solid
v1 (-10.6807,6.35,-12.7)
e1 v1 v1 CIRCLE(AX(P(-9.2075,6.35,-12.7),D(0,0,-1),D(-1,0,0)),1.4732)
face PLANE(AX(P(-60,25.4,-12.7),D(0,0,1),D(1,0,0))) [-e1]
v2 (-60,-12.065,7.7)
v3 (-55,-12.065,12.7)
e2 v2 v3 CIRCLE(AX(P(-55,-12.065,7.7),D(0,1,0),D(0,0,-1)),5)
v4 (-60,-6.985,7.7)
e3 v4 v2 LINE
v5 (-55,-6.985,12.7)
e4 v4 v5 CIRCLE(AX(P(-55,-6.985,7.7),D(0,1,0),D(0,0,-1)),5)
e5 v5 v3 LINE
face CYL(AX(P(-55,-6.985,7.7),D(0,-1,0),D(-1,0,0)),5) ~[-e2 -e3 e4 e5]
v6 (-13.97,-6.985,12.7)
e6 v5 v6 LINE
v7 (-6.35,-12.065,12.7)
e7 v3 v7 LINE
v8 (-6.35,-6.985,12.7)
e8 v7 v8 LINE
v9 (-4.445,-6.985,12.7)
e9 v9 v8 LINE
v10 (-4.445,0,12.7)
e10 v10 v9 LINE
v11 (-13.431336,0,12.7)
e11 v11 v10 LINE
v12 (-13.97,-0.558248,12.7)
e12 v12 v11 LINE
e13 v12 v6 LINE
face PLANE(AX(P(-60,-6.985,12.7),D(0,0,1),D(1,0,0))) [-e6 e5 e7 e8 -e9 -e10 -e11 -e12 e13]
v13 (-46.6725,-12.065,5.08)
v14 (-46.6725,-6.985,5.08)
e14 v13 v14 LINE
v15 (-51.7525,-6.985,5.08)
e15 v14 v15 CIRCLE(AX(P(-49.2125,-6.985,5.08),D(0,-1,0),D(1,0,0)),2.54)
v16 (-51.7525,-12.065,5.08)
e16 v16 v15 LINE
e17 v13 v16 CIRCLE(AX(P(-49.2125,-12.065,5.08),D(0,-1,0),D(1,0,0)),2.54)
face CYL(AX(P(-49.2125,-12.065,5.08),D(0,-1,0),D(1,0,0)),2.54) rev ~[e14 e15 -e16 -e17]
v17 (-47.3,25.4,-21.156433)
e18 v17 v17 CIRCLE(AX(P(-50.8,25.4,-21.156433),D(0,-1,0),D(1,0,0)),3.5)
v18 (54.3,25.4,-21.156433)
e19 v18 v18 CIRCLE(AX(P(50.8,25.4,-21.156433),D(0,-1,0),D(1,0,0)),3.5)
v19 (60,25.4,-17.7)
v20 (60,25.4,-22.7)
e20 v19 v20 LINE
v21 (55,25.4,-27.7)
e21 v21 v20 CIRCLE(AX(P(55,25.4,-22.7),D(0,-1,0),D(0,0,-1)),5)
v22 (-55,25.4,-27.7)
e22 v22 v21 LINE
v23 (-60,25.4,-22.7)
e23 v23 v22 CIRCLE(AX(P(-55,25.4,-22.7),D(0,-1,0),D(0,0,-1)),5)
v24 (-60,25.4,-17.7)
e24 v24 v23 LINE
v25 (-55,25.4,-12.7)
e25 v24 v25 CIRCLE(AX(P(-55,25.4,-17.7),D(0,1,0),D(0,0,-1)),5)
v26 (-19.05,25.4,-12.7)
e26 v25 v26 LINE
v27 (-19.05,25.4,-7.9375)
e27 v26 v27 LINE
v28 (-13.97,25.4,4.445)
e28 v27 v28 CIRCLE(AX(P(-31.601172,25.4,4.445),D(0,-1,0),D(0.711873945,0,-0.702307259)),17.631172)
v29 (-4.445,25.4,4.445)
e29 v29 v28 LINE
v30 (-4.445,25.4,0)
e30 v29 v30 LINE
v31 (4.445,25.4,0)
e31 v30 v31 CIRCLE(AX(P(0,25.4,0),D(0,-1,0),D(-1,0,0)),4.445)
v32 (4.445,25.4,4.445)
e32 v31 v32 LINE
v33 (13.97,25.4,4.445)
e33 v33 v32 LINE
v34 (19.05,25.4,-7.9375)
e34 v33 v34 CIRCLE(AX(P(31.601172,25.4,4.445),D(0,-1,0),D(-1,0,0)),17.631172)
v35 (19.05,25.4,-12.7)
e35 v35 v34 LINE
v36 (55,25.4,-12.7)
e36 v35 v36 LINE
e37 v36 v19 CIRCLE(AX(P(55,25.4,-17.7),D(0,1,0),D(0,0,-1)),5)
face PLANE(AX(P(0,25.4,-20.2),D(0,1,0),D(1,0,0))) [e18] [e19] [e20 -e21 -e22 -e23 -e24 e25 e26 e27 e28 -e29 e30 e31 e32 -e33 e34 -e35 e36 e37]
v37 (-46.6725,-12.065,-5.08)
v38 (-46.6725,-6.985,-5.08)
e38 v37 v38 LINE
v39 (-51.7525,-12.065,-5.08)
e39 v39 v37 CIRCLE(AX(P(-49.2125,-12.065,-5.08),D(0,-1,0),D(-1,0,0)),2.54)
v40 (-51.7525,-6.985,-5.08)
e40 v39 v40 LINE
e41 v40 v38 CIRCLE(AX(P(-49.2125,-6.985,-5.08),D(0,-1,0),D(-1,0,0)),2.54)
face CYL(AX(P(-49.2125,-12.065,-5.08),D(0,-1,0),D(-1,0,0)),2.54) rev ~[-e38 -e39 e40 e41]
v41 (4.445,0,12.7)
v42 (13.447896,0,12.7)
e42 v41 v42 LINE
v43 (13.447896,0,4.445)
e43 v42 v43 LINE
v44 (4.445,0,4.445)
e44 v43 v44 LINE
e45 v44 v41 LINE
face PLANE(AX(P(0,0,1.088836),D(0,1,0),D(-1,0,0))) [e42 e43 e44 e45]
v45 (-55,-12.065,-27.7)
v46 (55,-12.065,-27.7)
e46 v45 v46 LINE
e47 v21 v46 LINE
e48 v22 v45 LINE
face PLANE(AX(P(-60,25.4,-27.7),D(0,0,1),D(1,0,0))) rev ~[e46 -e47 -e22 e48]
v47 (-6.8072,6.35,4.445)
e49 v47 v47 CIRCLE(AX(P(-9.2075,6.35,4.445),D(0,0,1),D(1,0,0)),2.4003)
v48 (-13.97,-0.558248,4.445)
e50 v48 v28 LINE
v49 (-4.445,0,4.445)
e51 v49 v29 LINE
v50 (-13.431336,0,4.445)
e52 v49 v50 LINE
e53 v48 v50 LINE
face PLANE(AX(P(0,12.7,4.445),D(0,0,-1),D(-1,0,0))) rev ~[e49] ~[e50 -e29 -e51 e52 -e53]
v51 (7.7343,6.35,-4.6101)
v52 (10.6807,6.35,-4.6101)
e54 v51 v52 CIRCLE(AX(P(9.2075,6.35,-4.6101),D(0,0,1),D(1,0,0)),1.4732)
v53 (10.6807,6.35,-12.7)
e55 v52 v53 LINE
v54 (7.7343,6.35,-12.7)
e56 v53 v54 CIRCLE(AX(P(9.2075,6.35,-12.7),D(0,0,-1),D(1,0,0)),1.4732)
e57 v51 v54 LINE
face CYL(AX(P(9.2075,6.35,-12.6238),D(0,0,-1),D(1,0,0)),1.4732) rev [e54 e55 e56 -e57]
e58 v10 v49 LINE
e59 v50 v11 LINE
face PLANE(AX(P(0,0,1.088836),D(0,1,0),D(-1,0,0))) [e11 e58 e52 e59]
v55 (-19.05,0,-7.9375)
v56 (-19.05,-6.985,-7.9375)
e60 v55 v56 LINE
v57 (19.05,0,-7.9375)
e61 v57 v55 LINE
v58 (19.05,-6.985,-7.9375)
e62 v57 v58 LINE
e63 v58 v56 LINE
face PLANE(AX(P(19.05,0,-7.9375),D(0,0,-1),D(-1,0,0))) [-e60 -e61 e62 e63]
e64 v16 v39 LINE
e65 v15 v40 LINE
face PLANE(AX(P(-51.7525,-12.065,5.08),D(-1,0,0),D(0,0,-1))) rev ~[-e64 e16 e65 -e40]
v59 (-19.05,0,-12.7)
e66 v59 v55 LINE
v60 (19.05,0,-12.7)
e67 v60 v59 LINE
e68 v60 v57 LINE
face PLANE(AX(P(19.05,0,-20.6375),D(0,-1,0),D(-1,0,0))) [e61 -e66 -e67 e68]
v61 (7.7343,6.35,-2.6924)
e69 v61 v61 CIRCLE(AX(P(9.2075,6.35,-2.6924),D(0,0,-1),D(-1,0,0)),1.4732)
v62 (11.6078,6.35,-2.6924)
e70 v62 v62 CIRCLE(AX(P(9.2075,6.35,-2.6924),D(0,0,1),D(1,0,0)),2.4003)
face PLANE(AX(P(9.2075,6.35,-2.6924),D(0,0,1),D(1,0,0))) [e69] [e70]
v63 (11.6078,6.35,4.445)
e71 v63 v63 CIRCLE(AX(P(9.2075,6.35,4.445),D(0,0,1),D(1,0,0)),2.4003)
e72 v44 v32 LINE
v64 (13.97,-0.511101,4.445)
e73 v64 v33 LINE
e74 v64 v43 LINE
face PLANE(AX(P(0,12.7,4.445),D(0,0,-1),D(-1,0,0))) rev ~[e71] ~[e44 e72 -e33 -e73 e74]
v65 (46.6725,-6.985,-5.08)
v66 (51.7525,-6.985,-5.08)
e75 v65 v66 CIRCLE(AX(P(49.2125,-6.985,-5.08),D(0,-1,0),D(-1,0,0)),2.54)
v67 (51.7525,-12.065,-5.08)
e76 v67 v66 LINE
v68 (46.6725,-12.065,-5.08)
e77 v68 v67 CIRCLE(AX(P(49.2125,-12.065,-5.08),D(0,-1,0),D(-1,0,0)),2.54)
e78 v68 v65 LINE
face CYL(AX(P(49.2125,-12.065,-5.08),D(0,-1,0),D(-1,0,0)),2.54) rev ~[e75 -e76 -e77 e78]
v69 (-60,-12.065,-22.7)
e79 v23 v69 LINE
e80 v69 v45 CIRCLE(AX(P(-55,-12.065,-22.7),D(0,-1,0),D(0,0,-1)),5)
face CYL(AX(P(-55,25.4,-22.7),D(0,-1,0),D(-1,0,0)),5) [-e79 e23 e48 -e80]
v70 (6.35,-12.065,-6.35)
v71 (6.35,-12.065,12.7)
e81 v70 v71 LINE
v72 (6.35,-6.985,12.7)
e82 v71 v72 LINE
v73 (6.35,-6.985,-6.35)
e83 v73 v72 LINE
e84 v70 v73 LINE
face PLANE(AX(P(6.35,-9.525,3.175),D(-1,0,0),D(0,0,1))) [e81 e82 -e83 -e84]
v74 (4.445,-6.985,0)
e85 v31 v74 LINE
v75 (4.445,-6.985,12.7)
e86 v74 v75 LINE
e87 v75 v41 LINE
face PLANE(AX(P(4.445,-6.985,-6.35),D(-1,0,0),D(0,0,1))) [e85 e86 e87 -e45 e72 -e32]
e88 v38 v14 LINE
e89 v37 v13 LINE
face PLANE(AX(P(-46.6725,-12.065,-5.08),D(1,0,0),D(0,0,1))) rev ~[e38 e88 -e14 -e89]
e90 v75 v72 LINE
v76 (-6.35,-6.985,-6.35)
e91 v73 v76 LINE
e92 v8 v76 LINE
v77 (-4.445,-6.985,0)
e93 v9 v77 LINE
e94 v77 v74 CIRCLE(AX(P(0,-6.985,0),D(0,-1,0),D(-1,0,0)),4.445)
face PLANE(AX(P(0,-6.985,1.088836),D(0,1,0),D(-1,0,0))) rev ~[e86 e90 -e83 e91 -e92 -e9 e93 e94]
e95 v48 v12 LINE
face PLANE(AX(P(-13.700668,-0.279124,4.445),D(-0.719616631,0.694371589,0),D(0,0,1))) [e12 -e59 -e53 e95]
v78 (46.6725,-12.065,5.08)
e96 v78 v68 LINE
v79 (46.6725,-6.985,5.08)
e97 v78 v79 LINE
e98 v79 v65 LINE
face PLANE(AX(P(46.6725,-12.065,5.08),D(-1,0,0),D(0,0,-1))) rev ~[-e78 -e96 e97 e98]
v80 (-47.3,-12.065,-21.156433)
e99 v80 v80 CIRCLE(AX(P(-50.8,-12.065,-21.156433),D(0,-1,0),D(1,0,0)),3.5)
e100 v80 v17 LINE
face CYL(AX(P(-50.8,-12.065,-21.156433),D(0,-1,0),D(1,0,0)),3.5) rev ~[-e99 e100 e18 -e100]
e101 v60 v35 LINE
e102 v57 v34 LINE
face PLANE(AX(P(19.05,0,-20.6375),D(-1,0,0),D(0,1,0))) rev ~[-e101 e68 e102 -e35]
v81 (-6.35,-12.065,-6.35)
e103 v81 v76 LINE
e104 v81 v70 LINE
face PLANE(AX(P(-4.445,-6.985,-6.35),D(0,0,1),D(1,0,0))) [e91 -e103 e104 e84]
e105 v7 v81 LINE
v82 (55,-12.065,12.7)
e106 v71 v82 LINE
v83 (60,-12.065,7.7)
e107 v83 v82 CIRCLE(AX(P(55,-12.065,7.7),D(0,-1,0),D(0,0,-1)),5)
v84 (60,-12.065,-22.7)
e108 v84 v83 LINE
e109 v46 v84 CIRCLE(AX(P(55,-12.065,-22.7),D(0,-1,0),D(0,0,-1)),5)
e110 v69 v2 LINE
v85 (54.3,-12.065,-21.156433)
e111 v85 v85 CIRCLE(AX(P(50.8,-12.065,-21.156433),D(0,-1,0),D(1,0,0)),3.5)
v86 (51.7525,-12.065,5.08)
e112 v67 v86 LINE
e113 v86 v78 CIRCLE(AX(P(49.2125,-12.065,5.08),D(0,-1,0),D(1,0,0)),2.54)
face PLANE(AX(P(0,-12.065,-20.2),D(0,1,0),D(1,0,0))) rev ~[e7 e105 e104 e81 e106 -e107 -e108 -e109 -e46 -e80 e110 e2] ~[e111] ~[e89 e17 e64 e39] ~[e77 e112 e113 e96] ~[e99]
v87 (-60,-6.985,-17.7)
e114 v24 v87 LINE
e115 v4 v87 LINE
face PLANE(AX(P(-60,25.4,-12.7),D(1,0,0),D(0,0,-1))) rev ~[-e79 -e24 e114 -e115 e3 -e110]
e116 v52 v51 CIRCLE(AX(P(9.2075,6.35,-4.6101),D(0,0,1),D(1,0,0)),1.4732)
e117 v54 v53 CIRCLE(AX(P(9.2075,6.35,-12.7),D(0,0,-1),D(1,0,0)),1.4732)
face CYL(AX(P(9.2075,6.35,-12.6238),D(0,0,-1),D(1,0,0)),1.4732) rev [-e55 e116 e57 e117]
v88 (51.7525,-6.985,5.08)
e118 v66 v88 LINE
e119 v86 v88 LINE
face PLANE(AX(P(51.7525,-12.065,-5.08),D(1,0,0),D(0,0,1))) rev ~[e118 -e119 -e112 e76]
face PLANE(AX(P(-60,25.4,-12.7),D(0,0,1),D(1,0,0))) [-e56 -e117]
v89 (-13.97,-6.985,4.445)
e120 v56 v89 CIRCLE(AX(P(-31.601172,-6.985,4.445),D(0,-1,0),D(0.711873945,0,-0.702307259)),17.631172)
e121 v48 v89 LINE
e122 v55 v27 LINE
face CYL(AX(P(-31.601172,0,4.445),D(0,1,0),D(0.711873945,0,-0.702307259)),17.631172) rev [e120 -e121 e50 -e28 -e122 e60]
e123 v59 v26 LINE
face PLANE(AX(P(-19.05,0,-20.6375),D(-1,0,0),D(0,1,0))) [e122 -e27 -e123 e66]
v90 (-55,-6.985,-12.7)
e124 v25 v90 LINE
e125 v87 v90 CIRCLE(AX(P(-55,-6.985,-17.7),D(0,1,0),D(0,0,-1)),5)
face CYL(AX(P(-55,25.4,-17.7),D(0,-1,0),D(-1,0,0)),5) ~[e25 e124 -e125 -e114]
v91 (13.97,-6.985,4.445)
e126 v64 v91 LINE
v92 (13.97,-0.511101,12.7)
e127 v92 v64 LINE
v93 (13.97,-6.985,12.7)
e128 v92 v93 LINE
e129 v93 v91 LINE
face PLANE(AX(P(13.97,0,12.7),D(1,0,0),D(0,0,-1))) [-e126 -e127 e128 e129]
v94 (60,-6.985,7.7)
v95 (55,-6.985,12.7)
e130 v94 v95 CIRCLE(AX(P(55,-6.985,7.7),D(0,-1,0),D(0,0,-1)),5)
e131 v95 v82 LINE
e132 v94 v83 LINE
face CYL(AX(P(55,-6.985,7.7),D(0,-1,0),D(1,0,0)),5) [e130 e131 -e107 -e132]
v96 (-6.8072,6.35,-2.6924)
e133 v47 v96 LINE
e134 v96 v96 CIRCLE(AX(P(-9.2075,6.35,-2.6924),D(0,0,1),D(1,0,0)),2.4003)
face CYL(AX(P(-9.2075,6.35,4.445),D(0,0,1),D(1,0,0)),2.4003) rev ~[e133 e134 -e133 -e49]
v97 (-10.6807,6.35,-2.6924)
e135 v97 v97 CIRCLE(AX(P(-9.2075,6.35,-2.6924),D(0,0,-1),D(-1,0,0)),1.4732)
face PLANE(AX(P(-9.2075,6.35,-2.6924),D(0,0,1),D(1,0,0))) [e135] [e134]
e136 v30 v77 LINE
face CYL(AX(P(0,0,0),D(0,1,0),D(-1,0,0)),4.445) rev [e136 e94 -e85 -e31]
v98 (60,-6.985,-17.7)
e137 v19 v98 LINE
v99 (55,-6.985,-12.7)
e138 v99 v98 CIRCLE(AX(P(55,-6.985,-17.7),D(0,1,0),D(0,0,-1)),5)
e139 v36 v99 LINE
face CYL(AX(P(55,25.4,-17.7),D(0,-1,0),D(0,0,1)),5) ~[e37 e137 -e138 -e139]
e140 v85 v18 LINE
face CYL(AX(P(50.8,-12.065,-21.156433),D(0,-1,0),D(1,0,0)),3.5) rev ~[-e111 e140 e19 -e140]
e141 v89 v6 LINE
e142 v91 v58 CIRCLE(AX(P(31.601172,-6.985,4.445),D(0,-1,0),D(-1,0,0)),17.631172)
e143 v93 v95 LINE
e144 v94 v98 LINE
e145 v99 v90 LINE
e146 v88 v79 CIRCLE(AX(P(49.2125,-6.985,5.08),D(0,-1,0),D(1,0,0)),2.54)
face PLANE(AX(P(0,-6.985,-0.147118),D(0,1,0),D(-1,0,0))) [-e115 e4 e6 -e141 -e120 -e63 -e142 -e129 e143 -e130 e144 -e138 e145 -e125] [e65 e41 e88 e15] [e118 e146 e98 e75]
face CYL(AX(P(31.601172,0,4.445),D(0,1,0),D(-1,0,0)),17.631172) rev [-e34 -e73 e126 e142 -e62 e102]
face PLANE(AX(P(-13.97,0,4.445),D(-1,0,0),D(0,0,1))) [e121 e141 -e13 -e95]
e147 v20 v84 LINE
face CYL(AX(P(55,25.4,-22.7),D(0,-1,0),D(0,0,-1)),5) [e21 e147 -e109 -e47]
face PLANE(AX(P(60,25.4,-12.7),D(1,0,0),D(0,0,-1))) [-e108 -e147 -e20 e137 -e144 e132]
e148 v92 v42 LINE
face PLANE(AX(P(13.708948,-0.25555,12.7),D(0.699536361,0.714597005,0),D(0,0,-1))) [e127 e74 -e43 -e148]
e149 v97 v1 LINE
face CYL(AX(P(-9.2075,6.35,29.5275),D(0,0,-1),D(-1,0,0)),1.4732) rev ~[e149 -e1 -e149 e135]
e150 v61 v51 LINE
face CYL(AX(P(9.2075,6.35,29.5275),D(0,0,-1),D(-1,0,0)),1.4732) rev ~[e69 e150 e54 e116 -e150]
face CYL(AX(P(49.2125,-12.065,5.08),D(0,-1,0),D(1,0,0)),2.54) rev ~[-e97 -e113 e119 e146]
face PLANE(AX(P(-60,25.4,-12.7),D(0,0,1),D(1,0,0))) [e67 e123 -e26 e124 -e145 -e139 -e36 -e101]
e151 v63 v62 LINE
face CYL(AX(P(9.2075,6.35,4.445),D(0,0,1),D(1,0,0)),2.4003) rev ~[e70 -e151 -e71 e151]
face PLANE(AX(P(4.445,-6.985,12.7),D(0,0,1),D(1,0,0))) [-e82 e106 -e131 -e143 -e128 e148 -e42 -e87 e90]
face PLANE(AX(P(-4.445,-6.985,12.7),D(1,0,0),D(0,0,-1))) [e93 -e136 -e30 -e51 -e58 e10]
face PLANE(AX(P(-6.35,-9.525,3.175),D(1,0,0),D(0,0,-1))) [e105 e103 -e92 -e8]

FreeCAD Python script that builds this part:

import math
import FreeCAD as App
import Part
import Sketcher
from FreeCAD import Vector
Q = App.Units.Quantity


def edges_at(feature, points):
    """Names of the edges that pass closest to the given points."""
    edges = feature.Shape.Edges
    near = lambda p: min(range(len(edges)), key=lambda i: edges[i].distToShape(Part.Vertex(*p))[0])
    return sorted({f"Edge{near(p) + 1}" for p in points})


def add_polygon(sketch, points):
    """Adds a closed chain of lines whose ends are joined by coincident constraints."""
    first, n = sketch.GeometryCount, len(points)
    for a, b in zip(points, points[1:] + points[:1]):
        sketch.addGeometry(Part.LineSegment(App.Vector(*a, 0), App.Vector(*b, 0)), False)
    for i in range(n):
        sketch.addConstraint(Sketcher.Constraint("Coincident", first + i, 2, first + (i + 1) % n, 1))

doc = App.newDocument("Part")
body = doc.addObject("PartDesign::Body", "Body")

sketch1 = body.newObject("Sketcher::SketchObject", "Sketch")
sketch1.AttachmentSupport = (doc.getObject("XY_Plane"), [""])
sketch1.MapMode = "FlatFace"
sketch1.AttachmentOffset = App.Placement(Vector(0, 0, -0.8125 * 25.4), App.Rotation())
add_polygon(sketch1, [(19, 25), (19, 0), (-19, 0), (-19, 25)])
sketch1.addConstraint([
    Sketcher.Constraint("Vertical", 0),
    Sketcher.Constraint("Horizontal", 1),
    Sketcher.Constraint("Vertical", 2),
    Sketcher.Constraint("Horizontal", 3),
    Sketcher.Constraint("Symmetric", 0, 2, 1, 2, -1, 1),
    Sketcher.Constraint("DistanceY", 0, 2, 0, 1, Q("1 in")),
    Sketcher.Constraint("DistanceX", 1, 2, 1, 1, Q("1.5 in")),
])
pad1 = body.newObject("PartDesign::Pad", "Pad")
pad1.Profile = sketch1
pad1.Length = Q("0.9875 in")

sketch2 = body.newObject("Sketcher::SketchObject", "Sketch001")
sketch2.AttachmentSupport = (doc.getObject("XZ_Plane"), [""])
sketch2.MapMode = "FlatFace"
sketch2.addGeometry([
    Part.LineSegment(Vector(-14, 4, 0), Vector(-19, 4, 0)),
    Part.LineSegment(Vector(-19, 4, 0), Vector(-19, -8, 0)),
    Part.ArcOfCircle(Part.Circle(Vector(-32, 4, 0), Vector(0, 0, 1), 18), math.radians(-45), math.radians(0)),
], False)
sketch2.addConstraint([
    Sketcher.Constraint("Coincident", 0, 2, 1, 1),
    Sketcher.Constraint("Coincident", 1, 2, 2, 1),
    Sketcher.Constraint("Coincident", 2, 2, 0, 1),
    Sketcher.Constraint("Horizontal", 0),
    Sketcher.Constraint("Vertical", 1),
    Sketcher.Constraint("Horizontal", 2, 3, 0, 2),
    Sketcher.Constraint("DistanceX", 0, 2, 0, 1, Q("0.2 in")),
    Sketcher.Constraint("DistanceX", 0, 2, -1, 1, Q("0.75 in")),
    Sketcher.Constraint("DistanceY", 1, 2, 1, 1, Q("0.4875 in")),
    Sketcher.Constraint("DistanceY", -1, 1, 2, 3, Q("0.175 in")),
])
pocket1 = body.newObject("PartDesign::Pocket", "Pocket")
pocket1.Profile = sketch2
pocket1.Type = "ThroughAll"

sketch3 = body.newObject("Sketcher::SketchObject", "Sketch002")
sketch3.AttachmentSupport = (doc.getObject("XZ_Plane"), [""])
sketch3.MapMode = "FlatFace"
sketch3.addGeometry([
    Part.LineSegment(Vector(4.4, 4.4, 0), Vector(-4.4, 4.4, 0)),
    Part.LineSegment(Vector(-4.4, 4.4, 0), Vector(-4.4, 0, 0)),
    Part.ArcOfCircle(Part.Circle(Vector(0, 0, 0), Vector(0, 0, 1), 4.4), math.radians(180), math.radians(360)),
    Part.LineSegment(Vector(4.4, 0, 0), Vector(4.4, 4.4, 0)),
], False)
sketch3.addConstraint([
    Sketcher.Constraint("Coincident", 0, 2, 1, 1),
    Sketcher.Constraint("Tangent", 1, 2, 2, 1),
    Sketcher.Constraint("Tangent", 2, 2, 3, 1),
    Sketcher.Constraint("Coincident", 3, 2, 0, 1),
    Sketcher.Constraint("Horizontal", 0),
    Sketcher.Constraint("Vertical", 1),
    Sketcher.Constraint("Vertical", 3),
    Sketcher.Constraint("Coincident", 2, 3, -1, 1),
    Sketcher.Constraint("Radius", 2, Q("0.175 in")),
    Sketcher.Constraint("DistanceY", 1, 2, 1, 1, Q("0.175 in")),
])
pocket2 = body.newObject("PartDesign::Pocket", "Pocket001")
pocket2.Profile = sketch3
pocket2.Type = "ThroughAll"

sketch4 = body.newObject("Sketcher::SketchObject", "Sketch003")
sketch4.AttachmentSupport = (doc.getObject("XZ_Plane"), [""])
sketch4.MapMode = "FlatFace"
sketch4.addGeometry([
    Part.LineSegment(Vector(19, -8, 0), Vector(19, 4, 0)),
    Part.LineSegment(Vector(19, 4, 0), Vector(14, 4, 0)),
    Part.ArcOfCircle(Part.Circle(Vector(32, 4, 0), Vector(0, 0, 1), 18), math.radians(180), math.radians(225)),
], False)
sketch4.addConstraint([
    Sketcher.Constraint("Coincident", 0, 2, 1, 1),
    Sketcher.Constraint("Coincident", 1, 2, 2, 1),
    Sketcher.Constraint("Coincident", 2, 2, 0, 1),
    Sketcher.Constraint("Vertical", 0),
    Sketcher.Constraint("Horizontal", 1),
    Sketcher.Constraint("Horizontal", 2, 3, 0, 2),
    Sketcher.Constraint("DistanceX", 1, 2, 1, 1, Q("0.2 in")),
    Sketcher.Constraint("DistanceX", -1, 1, 0, 2, Q("0.75 in")),
    Sketcher.Constraint("DistanceY", 0, 1, 0, 2, Q("0.4875 in")),
    Sketcher.Constraint("DistanceY", -1, 1, 2, 3, Q("0.175 in")),
])
pocket3 = body.newObject("PartDesign::Pocket", "Pocket002")
pocket3.Profile = sketch4
pocket3.Type = "ThroughAll"

sketch5 = body.newObject("Sketcher::SketchObject", "Sketch004")
sketch5.AttachmentSupport = (doc.getObject("XZ_Plane"), [""])
sketch5.MapMode = "FlatFace"
sketch5.addGeometry([
    Part.LineSegment(Vector(4.4, 12.7, 0), Vector(4.4, 0, 0)),
    Part.ArcOfCircle(Part.Circle(Vector(0, 0, 0), Vector(0, 0, 1), 4.4), math.radians(180), math.radians(360)),
    Part.LineSegment(Vector(-4.4, 0, 0), Vector(-4.4, 12.7, 0)),
    Part.LineSegment(Vector(-4.4, 12.7, 0), Vector(-14, 12.7, 0)),
    Part.LineSegment(Vector(-14, 12.7, 0), Vector(-14, 4.4, 0)),
    Part.ArcOfCircle(Part.Circle(Vector(-31.6, 4.4, 0), Vector(0, 0, 1), 17.6), math.radians(-45), math.radians(0)),
    Part.LineSegment(Vector(-19.1, -7.9, 0), Vector(19.1, -7.9, 0)),
    Part.ArcOfCircle(Part.Circle(Vector(31.6, 4.4, 0), Vector(0, 0, 1), 17.6), math.radians(180), math.radians(225)),
    Part.LineSegment(Vector(14, 4.4, 0), Vector(14, 12.7, 0)),
    Part.LineSegment(Vector(14, 12.7, 0), Vector(4.4, 12.7, 0)),
], False)
sketch5.addConstraint([
    Sketcher.Constraint("Tangent", 0, 2, 1, 2),
    Sketcher.Constraint("Tangent", 1, 1, 2, 1),
    Sketcher.Constraint("Coincident", 2, 2, 3, 1),
    Sketcher.Constraint("Coincident", 3, 2, 4, 1),
    Sketcher.Constraint("Tangent", 4, 2, 5, 2),
    Sketcher.Constraint("Coincident", 5, 1, 6, 1),
    Sketcher.Constraint("Coincident", 6, 2, 7, 2),
    Sketcher.Constraint("Tangent", 7, 1, 8, 1),
    Sketcher.Constraint("Coincident", 8, 2, 9, 1),
    Sketcher.Constraint("Coincident", 9, 2, 0, 1),
    Sketcher.Constraint("Vertical", 0),
    Sketcher.Constraint("Vertical", 2),
    Sketcher.Constraint("Horizontal", 3),
    Sketcher.Constraint("Vertical", 4),
    Sketcher.Constraint("Horizontal", 6),
    Sketcher.Constraint("Vertical", 8),
    Sketcher.Constraint("Horizontal", 9),
    Sketcher.Constraint("Coincident", 1, 3, -1, 1),
    Sketcher.Constraint("Equal", 5, 7),
    Sketcher.Constraint("Symmetric", 5, 3, 7, 3, -2),
    Sketcher.Constraint("Horizontal", 3, 2, 8, 2),
    Sketcher.Constraint("DistanceX", 6, 1, 6, 2, Q("1.5 in")),
    Sketcher.Constraint("DistanceY", 0, 2, 0, 1, Q("0.5 in")),
    Sketcher.Constraint("Radius", 1, Q("0.175 in")),
    Sketcher.Constraint("DistanceX", 5, 1, 4, 2, Q("0.2 in")),
    Sketcher.Constraint("DistanceY", 4, 2, 4, 1, Q("0.325 in")),
    Sketcher.Constraint("DistanceY", 5, 1, -1, 1, Q("0.3125 in")),
])
pad2 = body.newObject("PartDesign::Pad", "Pad001")
pad2.Profile = sketch5
pad2.Length = Q("0.275 in")

sketch6 = body.newObject("Sketcher::SketchObject", "Sketch005")
sketch6.AttachmentSupport = (doc.getObject("XZ_Plane"), [""])
sketch6.MapMode = "FlatFace"
sketch6.AttachmentOffset = App.Placement(Vector(0, 0, 0.275 * 25.4), App.Rotation())
add_polygon(sketch6, [(4, -6), (-4, -6), (-4, 13), (-60, 13), (-60, -13), (60, -13), (60, 13), (4, 13)])
sketch6.addConstraint([
    Sketcher.Constraint("Horizontal", 0),
    Sketcher.Constraint("Vertical", 1),
    Sketcher.Constraint("Horizontal", 2),
    Sketcher.Constraint("Vertical", 3),
    Sketcher.Constraint("Horizontal", 4),
    Sketcher.Constraint("Vertical", 5),
    Sketcher.Constraint("Horizontal", 6),
    Sketcher.Constraint("Vertical", 7),
    Sketcher.Constraint("Symmetric", 2, 2, 4, 2, -1, 1),
    Sketcher.Constraint("Symmetric", 1, 2, 6, 2, -2),
    Sketcher.Constraint("DistanceY", 3, 2, 3, 1, Q("1 in")),
    Sketcher.Constraint("DistanceX", 0, 2, 0, 1, Q("0.35 in")),
    Sketcher.Constraint("DistanceY", 1, 1, 1, 2, Q("0.75 in")),
    Sketcher.Constraint("DistanceX", 2, 2, 2, 1, Q("55.555 mm")),
])
pad3 = body.newObject("PartDesign::Pad", "Pad002")
pad3.Profile = sketch6
pad3.Length = Q("0.2 in")

sketch7 = body.newObject("Sketcher::SketchObject", "Sketch006")
sketch7.AttachmentSupport = (doc.getObject("YZ_Plane"), [""])
sketch7.MapMode = "FlatFace"
sketch7.AttachmentOffset = App.Placement(Vector(0, 0, 0.175 * 25.4), App.Rotation())
add_polygon(sketch7, [(-7, -6), (-12, -6), (-12, 13), (-7, 13)])
sketch7.addConstraint([
    Sketcher.Constraint("Horizontal", 0),
    Sketcher.Constraint("Vertical", 1),
    Sketcher.Constraint("Horizontal", 2),
    Sketcher.Constraint("Vertical", 3),
    Sketcher.Constraint("DistanceX", 0, 2, 0, 1, Q("0.2 in")),
    Sketcher.Constraint("DistanceY", 1, 1, 1, 2, Q("0.75 in")),
    Sketcher.Constraint("DistanceY", -1, 1, 1, 2, Q("0.5 in")),
    Sketcher.Constraint("DistanceX", 0, 2, -1, 1, Q("0.475 in")),
])
pocket4 = body.newObject("PartDesign::Pocket", "Pocket003")
pocket4.Profile = sketch7
pocket4.Length = Q("0.075 in")
pocket4.Reversed = True

sketch8 = body.newObject("Sketcher::SketchObject", "Sketch007")
sketch8.AttachmentSupport = (doc.getObject("YZ_Plane"), [""])
sketch8.MapMode = "FlatFace"
sketch8.AttachmentOffset = App.Placement(Vector(0, 0, -0.175 * 25.4), App.Rotation())
add_polygon(sketch8, [(-7, 13), (-12, 13), (-12, -6), (-7, -6)])
sketch8.addConstraint([
    Sketcher.Constraint("Horizontal", 0),
    Sketcher.Constraint("Vertical", 1),
    Sketcher.Constraint("Horizontal", 2),
    Sketcher.Constraint("Vertical", 3),
    Sketcher.Constraint("DistanceX", 0, 2, 0, 1, Q("0.2 in")),
    Sketcher.Constraint("DistanceY", 1, 2, 1, 1, Q("0.75 in")),
    Sketcher.Constraint("DistanceY", -1, 1, 0, 2, Q("0.5 in")),
    Sketcher.Constraint("DistanceX", 0, 2, -1, 1, Q("0.475 in")),
])
pocket5 = body.newObject("PartDesign::Pocket", "Pocket004")
pocket5.Profile = sketch8
pocket5.Length = Q("0.075 in")

sketch9 = body.newObject("Sketcher::SketchObject", "Sketch008")
sketch9.AttachmentSupport = (doc.getObject("XZ_Plane"), [""])
sketch9.MapMode = "FlatFace"
sketch9.AttachmentOffset = App.Placement(Vector(0, 0, 0.475 * 25.4), App.Rotation())
sketch9.addGeometry([
    Part.LineSegment(Vector(51.8, -5.1, 0), Vector(51.8, 5.1, 0)),
    Part.ArcOfCircle(Part.Circle(Vector(49.2, 5.1, 0), Vector(0, 0, 1), 2.5), math.radians(0), math.radians(180)),
    Part.LineSegment(Vector(46.7, 5.1, 0), Vector(46.7, -5.1, 0)),
    Part.ArcOfCircle(Part.Circle(Vector(49.2, -5.1, 0), Vector(0, 0, 1), 2.5), math.radians(180), math.radians(360)),
], False)
sketch9.addConstraint([
    Sketcher.Constraint("Tangent", 0, 2, 1, 1),
    Sketcher.Constraint("Tangent", 1, 2, 2, 1),
    Sketcher.Constraint("Tangent", 2, 2, 3, 1),
    Sketcher.Constraint("Tangent", 3, 2, 0, 1),
    Sketcher.Constraint("Vertical", 0),
    Sketcher.Constraint("Vertical", 2),
    Sketcher.Constraint("Radius", 1, Q("0.1 in")),
    Sketcher.Constraint("DistanceY", 0, 1, 0, 2, Q("0.4 in")),
    Sketcher.Constraint("DistanceY", -1, 1, 1, 3, Q("0.2 in")),
    Sketcher.Constraint("DistanceX", -1, 1, 1, 3, Q("1.9375 in")),
])
pocket6 = body.newObject("PartDesign::Pocket", "Pocket005")
pocket6.Profile = sketch9
pocket6.Type = "UpToFirst"

sketch10 = body.newObject("Sketcher::SketchObject", "Sketch009")
sketch10.AttachmentSupport = (doc.getObject("XZ_Plane"), [""])
sketch10.MapMode = "FlatFace"
sketch10.AttachmentOffset = App.Placement(Vector(0, 0, 0.475 * 25.4), App.Rotation())
sketch10.addGeometry([
    Part.LineSegment(Vector(-46.7, -5.1, 0), Vector(-46.7, 5.1, 0)),
    Part.ArcOfCircle(Part.Circle(Vector(-49.2, 5.1, 0), Vector(0, 0, 1), 2.5), math.radians(0), math.radians(180)),
    Part.LineSegment(Vector(-51.8, 5.1, 0), Vector(-51.8, -5.1, 0)),
    Part.ArcOfCircle(Part.Circle(Vector(-49.2, -5.1, 0), Vector(0, 0, 1), 2.5), math.radians(180), math.radians(360)),
], False)
sketch10.addConstraint([
    Sketcher.Constraint("Tangent", 0, 2, 1, 1),
    Sketcher.Constraint("Tangent", 1, 2, 2, 1),
    Sketcher.Constraint("Tangent", 2, 2, 3, 1),
    Sketcher.Constraint("Tangent", 3, 2, 0, 1),
    Sketcher.Constraint("Vertical", 0),
    Sketcher.Constraint("Vertical", 2),
    Sketcher.Constraint("Radius", 1, Q("0.1 in")),
    Sketcher.Constraint("DistanceY", 0, 1, 0, 2, Q("0.4 in")),
    Sketcher.Constraint("DistanceY", -1, 1, 1, 3, Q("0.2 in")),
    Sketcher.Constraint("DistanceX", 1, 3, -1, 1, Q("1.9375 in")),
])
pocket7 = body.newObject("PartDesign::Pocket", "Pocket006")
pocket7.Profile = sketch10
pocket7.Type = "UpToFirst"

sketch11 = body.newObject("Sketcher::SketchObject", "Sketch010")
sketch11.AttachmentSupport = (doc.getObject("XZ_Plane"), [""])
sketch11.MapMode = "FlatFace"
sketch11.AttachmentOffset = App.Placement(Vector(0, 0, -0.25 * 25.4), App.Rotation())
add_polygon(sketch11, [(9.2, -20.6), (9.2, -4.6), (10.7, -4.6), (10.7, -20.6)])
sketch11.addGeometry(Part.LineSegment(Vector(9.2, -20.6, 0), Vector(9.2, -4.6, 0)), True)
sketch11.addConstraint([
    Sketcher.Constraint("Vertical", 0),
    Sketcher.Constraint("Horizontal", 1),
    Sketcher.Constraint("Vertical", 2),
    Sketcher.Constraint("Horizontal", 3),
    Sketcher.Constraint("Vertical", 4),
    Sketcher.Constraint("Coincident", 4, 1, 3, 2),
    Sketcher.Constraint("Horizontal", 1, 2, 4, 2),
    Sketcher.Constraint("DistanceX", 1, 1, 1, 2, Q("0.058 in")),
    Sketcher.Constraint("DistanceY", 0, 1, 0, 2, Q("0.631 in")),
    Sketcher.Constraint("DistanceY", 2, 2, -1, 1, Q("0.8125 in")),
    Sketcher.Constraint("DistanceX", -1, 1, 0, 2, Q("0.3625 in")),
])
groove = body.newObject("PartDesign::Groove", "Groove")
groove.Profile = sketch11
groove.ReferenceAxis = (sketch11, ["Axis0"])
groove.Angle = 360

sketch12 = body.newObject("Sketcher::SketchObject", "Sketch011")
sketch12.AttachmentSupport = (doc.getObject("XY_Plane"), [""])
sketch12.MapMode = "FlatFace"
sketch12.AttachmentOffset = App.Placement(Vector(0, 0, 0.175 * 25.4), App.Rotation())
sketch12.addGeometry([
    Part.Circle(Vector(9.2, 6.3, 0), Vector(0, 0, 1), 1.5),
    Part.Circle(Vector(-9.2, 6.3, 0), Vector(0, 0, 1), 1.5),
], False)
sketch12.addConstraint([
    Sketcher.Constraint("Equal", 0, 1),
    Sketcher.Constraint("Symmetric", 0, 3, 1, 3, -2),
    Sketcher.Constraint("Diameter", 0, Q("0.116 in")),
    Sketcher.Constraint("DistanceY", -1, 1, 0, 3, Q("0.25 in")),
    Sketcher.Constraint("DistanceX", 1, 3, 0, 3, Q("0.725 in")),
])
doc.recompute()
hole = body.newObject("PartDesign::Hole", "Hole")
hole.Profile = sketch12
hole.ThreadType = "None"
hole.Diameter = Q("0.116 in")
hole.DepthType = "Dimension"
hole.Depth = Q("0.9875 in")
hole.DrillPoint = "Flat"
doc.recompute()

chamfer = body.newObject("PartDesign::Chamfer", "Chamfer")
chamfer.Base = (hole, edges_at(hole, [(13.97, 0, 8.572)]))
chamfer.ChamferType = "Two distances"
chamfer.Size = 0.511101
chamfer.Size2 = 0.522104
doc.recompute()

chamfer2 = body.newObject("PartDesign::Chamfer", "Chamfer001")
chamfer2.Base = (chamfer, edges_at(chamfer, [(-13.97, 0, 8.572)]))
chamfer2.ChamferType = "Two distances"
chamfer2.Size = 0.558248
chamfer2.Size2 = 0.538664

sketch13 = body.newObject("Sketcher::SketchObject", "Sketch012")
sketch13.AttachmentSupport = (doc.getObject("XY_Plane"), [""])
sketch13.MapMode = "FlatFace"
sketch13.AttachmentOffset = App.Placement(Vector(0, 0, -0.8125 * 25.4), App.Rotation())
add_polygon(sketch13, [(19, 25), (19, 0), (-19, 0), (-19, 25)])
sketch13.addConstraint([
    Sketcher.Constraint("Vertical", 0),
    Sketcher.Constraint("Horizontal", 1),
    Sketcher.Constraint("Vertical", 2),
    Sketcher.Constraint("Horizontal", 3),
    Sketcher.Constraint("Symmetric", 0, 2, 1, 2, -1, 1),
    Sketcher.Constraint("DistanceY", 0, 2, 0, 1, Q("1 in")),
    Sketcher.Constraint("DistanceX", 1, 2, 1, 1, Q("1.5 in")),
])
pocket8 = body.newObject("PartDesign::Pocket", "Pocket007")
pocket8.Profile = sketch13
pocket8.Length = Q("0.3125 in")
pocket8.Reversed = True

sketch14 = body.newObject("Sketcher::SketchObject", "Sketch013")
sketch14.AttachmentSupport = (doc.getObject("XZ_Plane"), [""])
sketch14.MapMode = "FlatFace"
sketch14.AttachmentOffset = App.Placement(Vector(0, 0, -1 * 25.4), App.Rotation())
add_polygon(sketch14, [(-60, -28), (-60, -13), (60, -13), (60, -28)])
sketch14.addConstraint([
    Sketcher.Constraint("Vertical", 0),
    Sketcher.Constraint("Horizontal", 1),
    Sketcher.Constraint("Vertical", 2),
    Sketcher.Constraint("Horizontal", 3),
    Sketcher.Constraint("DistanceY", 0, 2, -1, 1, Q("0.5 in")),
    Sketcher.Constraint("DistanceX", 1, 1, 1, 2, Q("120 mm")),
    Sketcher.Constraint("DistanceY", 0, 1, 0, 2, Q("15 mm")),
    Sketcher.Constraint("DistanceX", 0, 2, -1, 1, Q("60 mm")),
])
pad4 = body.newObject("PartDesign::Pad", "Pad003")
pad4.Profile = sketch14
pad4.Length = Q("1.475 in")

sketch15 = body.newObject("Sketcher::SketchObject", "Sketch014")
sketch15.AttachmentSupport = (doc.getObject("XZ_Plane"), [""])
sketch15.MapMode = "FlatFace"
sketch15.AttachmentOffset = App.Placement(Vector(0, 0, 0.475 * 25.4), App.Rotation())
sketch15.addGeometry([
    Part.Circle(Vector(-50.8, -21.2, 0), Vector(0, 0, 1), 3.5),
    Part.Circle(Vector(50.8, -21.2, 0), Vector(0, 0, 1), 3.5),
], False)
sketch15.addConstraint([
    Sketcher.Constraint("Equal", 0, 1),
    Sketcher.Constraint("Symmetric", 0, 3, 1, 3, -2),
    Sketcher.Constraint("DistanceX", 0, 3, -1, 1, Q("2 in")),
    Sketcher.Constraint("Diameter", 0, Q("7 mm")),
    Sketcher.Constraint("DistanceY", 0, 3, -1, 1, Q("21.156433 mm")),
])
pocket9 = body.newObject("PartDesign::Pocket", "Pocket008")
pocket9.Profile = sketch15
pocket9.Type = "ThroughAll"
doc.recompute()

fillet = body.newObject("PartDesign::Fillet", "Fillet")
fillet.Base = (pocket9, edges_at(pocket9, [(60, 6.668, -27.7), (-60, 6.668, -27.7)]))
fillet.Radius = 5
doc.recompute()

fillet2 = body.newObject("PartDesign::Fillet", "Fillet001")
fillet2.Base = (fillet, edges_at(fillet, [(60, 9.207, -12.7), (-60, 9.207, -12.7)]))
fillet2.Radius = 5
doc.recompute()

fillet3 = body.newObject("PartDesign::Fillet", "Fillet002")
fillet3.Base = (fillet2, edges_at(fillet2, [(-60, -9.525, 12.7), (60, -9.525, 12.7)]))
fillet3.Radius = 5

sketch16 = body.newObject("Sketcher::SketchObject", "Sketch015")
sketch16.AttachmentSupport = (doc.getObject("XY_Plane"), [""])
sketch16.MapMode = "FlatFace"
sketch16.AttachmentOffset = App.Placement(Vector(0, 0, 0.175 * 25.4), App.Rotation())
sketch16.addGeometry([
    Part.Circle(Vector(-9.2, 6.3, 0), Vector(0, 0, 1), 2.4),
    Part.Circle(Vector(9.2, 6.3, 0), Vector(0, 0, 1), 2.4),
], False)
sketch16.addConstraint([
    Sketcher.Constraint("Equal", 0, 1),
    Sketcher.Constraint("Symmetric", 0, 3, 1, 3, -2),
    Sketcher.Constraint("Diameter", 0, Q("0.189 in")),
    Sketcher.Constraint("DistanceY", -1, 1, 0, 3, Q("0.25 in")),
    Sketcher.Constraint("DistanceX", 0, 3, 1, 3, Q("0.725 in")),
])
pocket10 = body.newObject("PartDesign::Pocket", "Pocket009")
pocket10.Profile = sketch16
pocket10.Length = Q("0.281 in")

doc.recompute()
